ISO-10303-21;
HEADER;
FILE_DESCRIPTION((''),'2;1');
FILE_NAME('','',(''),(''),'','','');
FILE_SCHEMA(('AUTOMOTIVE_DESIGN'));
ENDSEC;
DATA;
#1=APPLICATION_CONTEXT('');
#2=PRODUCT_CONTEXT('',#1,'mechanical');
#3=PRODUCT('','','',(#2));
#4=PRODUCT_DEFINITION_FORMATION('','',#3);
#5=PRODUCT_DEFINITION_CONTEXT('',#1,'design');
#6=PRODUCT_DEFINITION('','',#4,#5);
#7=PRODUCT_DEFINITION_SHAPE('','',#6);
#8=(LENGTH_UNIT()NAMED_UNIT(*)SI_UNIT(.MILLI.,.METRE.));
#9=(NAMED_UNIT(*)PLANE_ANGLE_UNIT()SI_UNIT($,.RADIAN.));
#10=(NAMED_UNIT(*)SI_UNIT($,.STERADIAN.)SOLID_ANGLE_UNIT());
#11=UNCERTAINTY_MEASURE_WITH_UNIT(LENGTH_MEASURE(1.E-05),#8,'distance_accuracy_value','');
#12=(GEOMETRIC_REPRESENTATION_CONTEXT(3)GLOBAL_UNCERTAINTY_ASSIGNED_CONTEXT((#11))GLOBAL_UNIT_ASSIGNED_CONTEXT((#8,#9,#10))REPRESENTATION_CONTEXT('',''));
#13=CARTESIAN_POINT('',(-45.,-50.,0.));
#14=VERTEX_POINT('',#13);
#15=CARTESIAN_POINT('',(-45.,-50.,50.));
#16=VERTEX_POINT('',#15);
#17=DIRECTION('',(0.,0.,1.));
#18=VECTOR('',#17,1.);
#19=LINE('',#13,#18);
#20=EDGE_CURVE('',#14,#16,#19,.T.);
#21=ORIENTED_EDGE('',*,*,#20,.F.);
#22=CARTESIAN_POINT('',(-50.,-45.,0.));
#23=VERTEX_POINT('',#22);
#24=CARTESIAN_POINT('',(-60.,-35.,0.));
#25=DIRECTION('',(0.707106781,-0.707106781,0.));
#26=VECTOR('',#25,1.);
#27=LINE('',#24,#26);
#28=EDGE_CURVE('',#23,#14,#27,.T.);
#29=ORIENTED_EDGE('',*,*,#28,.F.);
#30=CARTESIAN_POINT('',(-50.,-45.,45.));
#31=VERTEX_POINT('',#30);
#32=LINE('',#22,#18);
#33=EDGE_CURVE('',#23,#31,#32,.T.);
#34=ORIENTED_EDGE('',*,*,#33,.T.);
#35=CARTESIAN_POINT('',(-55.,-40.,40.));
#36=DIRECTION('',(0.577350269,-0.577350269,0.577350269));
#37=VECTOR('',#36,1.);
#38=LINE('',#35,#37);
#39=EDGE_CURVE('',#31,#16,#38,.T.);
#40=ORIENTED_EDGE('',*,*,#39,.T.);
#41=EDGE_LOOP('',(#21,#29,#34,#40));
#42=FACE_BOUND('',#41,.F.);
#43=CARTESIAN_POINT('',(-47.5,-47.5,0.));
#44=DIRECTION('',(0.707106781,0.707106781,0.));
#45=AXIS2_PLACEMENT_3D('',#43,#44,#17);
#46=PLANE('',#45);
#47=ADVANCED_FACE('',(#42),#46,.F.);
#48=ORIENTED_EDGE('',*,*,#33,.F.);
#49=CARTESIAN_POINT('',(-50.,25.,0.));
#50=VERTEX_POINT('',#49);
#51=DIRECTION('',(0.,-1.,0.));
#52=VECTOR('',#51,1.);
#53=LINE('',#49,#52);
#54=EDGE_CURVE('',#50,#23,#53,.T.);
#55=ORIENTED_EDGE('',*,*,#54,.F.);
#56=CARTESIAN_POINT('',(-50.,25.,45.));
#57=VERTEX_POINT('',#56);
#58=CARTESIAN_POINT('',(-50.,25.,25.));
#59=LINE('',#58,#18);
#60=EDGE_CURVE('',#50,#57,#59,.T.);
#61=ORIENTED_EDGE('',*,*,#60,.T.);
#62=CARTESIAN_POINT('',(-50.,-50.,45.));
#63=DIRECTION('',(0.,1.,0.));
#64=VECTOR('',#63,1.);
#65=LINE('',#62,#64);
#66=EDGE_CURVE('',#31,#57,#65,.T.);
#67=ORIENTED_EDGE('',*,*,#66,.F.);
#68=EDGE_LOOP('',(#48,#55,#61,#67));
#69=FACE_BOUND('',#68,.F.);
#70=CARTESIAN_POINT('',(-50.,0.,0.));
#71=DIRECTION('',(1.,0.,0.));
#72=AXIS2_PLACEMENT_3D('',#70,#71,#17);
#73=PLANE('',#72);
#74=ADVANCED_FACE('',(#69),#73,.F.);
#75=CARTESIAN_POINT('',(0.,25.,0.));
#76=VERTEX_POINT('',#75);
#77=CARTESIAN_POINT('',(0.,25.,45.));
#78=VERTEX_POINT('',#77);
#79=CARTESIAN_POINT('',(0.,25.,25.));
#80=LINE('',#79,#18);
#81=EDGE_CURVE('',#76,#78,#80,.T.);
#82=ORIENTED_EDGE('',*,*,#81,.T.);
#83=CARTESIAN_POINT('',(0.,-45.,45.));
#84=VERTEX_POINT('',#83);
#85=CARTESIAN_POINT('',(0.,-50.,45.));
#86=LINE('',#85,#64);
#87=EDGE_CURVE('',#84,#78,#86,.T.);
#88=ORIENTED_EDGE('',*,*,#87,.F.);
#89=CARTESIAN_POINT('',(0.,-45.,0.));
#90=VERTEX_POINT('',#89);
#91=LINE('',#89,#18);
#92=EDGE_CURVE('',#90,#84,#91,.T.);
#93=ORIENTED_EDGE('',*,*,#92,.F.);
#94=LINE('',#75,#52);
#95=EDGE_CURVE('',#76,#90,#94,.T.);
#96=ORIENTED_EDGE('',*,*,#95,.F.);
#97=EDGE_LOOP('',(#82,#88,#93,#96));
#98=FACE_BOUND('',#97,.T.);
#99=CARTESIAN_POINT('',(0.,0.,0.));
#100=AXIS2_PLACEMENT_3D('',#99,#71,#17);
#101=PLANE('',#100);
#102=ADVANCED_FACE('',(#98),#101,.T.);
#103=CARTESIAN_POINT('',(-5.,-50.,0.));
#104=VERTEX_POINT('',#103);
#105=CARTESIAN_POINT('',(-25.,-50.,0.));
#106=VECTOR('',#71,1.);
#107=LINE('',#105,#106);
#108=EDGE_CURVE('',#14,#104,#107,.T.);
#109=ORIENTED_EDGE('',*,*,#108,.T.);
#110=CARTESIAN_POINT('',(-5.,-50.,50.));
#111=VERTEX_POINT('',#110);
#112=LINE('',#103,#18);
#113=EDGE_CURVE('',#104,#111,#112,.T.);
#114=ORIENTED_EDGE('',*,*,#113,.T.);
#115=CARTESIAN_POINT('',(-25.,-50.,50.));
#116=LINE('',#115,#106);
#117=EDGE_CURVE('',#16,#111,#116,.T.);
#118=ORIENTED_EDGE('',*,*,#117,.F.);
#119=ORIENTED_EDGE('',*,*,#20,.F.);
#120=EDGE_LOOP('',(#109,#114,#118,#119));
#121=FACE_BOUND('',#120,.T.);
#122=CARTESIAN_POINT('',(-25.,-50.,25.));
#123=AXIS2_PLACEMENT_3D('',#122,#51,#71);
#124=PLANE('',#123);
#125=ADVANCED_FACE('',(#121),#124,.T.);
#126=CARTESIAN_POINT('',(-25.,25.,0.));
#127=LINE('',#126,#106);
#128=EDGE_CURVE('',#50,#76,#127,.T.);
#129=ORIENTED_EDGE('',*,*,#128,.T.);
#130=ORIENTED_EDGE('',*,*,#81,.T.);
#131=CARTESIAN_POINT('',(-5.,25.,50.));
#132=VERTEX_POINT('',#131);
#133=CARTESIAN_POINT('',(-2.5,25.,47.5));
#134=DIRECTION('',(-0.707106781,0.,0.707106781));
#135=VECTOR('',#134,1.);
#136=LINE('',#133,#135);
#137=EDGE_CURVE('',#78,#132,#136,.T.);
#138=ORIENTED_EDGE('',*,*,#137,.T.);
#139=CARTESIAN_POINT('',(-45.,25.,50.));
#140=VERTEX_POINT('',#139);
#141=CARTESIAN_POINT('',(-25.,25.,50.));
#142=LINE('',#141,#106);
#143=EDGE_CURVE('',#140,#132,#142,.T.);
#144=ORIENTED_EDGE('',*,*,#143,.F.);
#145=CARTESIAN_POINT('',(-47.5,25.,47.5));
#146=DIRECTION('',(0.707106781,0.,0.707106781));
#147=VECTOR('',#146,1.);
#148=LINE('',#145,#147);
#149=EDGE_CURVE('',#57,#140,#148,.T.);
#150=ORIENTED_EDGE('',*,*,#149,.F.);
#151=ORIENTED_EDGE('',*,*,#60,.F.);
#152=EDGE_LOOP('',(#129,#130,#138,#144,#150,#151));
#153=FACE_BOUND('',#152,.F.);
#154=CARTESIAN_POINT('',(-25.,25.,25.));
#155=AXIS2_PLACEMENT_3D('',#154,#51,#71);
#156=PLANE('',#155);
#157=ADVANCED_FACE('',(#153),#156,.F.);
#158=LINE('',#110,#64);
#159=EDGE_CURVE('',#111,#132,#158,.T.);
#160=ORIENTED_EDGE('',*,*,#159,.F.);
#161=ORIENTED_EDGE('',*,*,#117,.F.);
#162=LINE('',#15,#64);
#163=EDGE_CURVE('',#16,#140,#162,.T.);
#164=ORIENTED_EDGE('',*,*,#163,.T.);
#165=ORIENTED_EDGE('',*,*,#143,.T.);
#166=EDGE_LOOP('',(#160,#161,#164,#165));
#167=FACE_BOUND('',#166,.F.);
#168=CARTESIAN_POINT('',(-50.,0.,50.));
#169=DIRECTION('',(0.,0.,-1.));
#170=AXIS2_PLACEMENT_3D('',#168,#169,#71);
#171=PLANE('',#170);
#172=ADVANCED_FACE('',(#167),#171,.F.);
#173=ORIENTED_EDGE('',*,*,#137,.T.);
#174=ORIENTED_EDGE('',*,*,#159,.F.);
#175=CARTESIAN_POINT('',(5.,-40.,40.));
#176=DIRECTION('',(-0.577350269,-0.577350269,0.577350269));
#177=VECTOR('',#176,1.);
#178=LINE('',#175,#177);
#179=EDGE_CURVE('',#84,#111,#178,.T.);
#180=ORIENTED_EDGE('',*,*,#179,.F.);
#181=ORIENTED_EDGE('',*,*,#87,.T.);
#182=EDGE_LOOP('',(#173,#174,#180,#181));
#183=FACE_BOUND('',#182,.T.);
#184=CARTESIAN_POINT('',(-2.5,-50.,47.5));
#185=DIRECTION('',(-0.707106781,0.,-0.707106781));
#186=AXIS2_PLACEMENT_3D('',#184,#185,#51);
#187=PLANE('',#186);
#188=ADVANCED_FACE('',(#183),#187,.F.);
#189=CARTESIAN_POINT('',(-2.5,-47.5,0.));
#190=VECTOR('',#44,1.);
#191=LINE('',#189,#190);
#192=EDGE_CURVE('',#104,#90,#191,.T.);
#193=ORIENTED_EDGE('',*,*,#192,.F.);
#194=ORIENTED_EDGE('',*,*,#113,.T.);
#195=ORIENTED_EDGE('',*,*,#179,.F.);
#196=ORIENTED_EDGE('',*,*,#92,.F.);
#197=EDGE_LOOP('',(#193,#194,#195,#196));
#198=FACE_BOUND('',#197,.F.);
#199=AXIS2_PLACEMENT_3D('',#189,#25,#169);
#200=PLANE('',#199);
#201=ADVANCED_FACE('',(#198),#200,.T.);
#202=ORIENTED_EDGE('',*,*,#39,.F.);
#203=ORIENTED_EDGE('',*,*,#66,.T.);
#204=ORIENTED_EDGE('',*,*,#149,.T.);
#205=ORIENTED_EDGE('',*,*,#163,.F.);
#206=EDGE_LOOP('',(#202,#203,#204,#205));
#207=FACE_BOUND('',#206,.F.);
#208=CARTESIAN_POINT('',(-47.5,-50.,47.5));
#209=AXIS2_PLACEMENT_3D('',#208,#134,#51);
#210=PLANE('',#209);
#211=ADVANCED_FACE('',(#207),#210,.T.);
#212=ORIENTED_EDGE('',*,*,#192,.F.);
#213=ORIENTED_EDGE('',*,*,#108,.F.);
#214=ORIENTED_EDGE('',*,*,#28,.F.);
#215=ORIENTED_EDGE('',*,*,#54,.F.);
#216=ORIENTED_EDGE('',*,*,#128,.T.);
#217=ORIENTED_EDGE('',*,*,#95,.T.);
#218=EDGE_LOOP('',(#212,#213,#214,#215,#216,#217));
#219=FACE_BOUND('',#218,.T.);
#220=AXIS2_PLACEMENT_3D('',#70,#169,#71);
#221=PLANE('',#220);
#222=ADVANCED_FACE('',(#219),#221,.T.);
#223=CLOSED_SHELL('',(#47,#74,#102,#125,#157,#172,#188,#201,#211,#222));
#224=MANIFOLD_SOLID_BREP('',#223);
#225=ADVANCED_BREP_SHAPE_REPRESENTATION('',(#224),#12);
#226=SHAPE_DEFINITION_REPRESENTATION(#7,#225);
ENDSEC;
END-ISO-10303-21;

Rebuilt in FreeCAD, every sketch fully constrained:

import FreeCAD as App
import Part
import Sketcher

V = App.Vector


def edges_at(feature, points):
    """Names of the edges that pass closest to the given points."""
    edges = feature.Shape.Edges
    near = lambda p: min(range(len(edges)), key=lambda i: edges[i].distToShape(Part.Vertex(*p))[0])
    return sorted({f"Edge{near(p) + 1}" for p in points})

doc = App.newDocument("Part")
body = doc.addObject("PartDesign::Body", "Body")

# Sketch on XZ plane
sketch1 = body.newObject("Sketcher::SketchObject", "Sketch")
sketch1.AttachmentSupport = (doc.getObject("XZ_Plane"), [""])
sketch1.MapMode = "FlatFace"
sketch1.addGeometry(Part.LineSegment(V(-50, 50, 0), V(-50, 0, 0)), False)
sketch1.addGeometry(Part.LineSegment(V(-50, 0, 0), V(0, 0, 0)), False)
sketch1.addGeometry(Part.LineSegment(V(0, 0, 0), V(0, 50, 0)), False)
sketch1.addGeometry(Part.LineSegment(V(0, 50, 0), V(-50, 50, 0)), False)
sketch1.addConstraint(Sketcher.Constraint("Coincident", 0, 2, 1, 1))
sketch1.addConstraint(Sketcher.Constraint("Coincident", 1, 2, 2, 1))
sketch1.addConstraint(Sketcher.Constraint("Coincident", 2, 2, 3, 1))
sketch1.addConstraint(Sketcher.Constraint("Coincident", 3, 2, 0, 1))
sketch1.addConstraint(Sketcher.Constraint("Vertical", 0))
sketch1.addConstraint(Sketcher.Constraint("Horizontal", 1))
sketch1.addConstraint(Sketcher.Constraint("Vertical", 2))
sketch1.addConstraint(Sketcher.Constraint("Horizontal", 3))
sketch1.addConstraint(Sketcher.Constraint("Coincident", 1, 2, -1, 1))
sketch1.addConstraint(Sketcher.Constraint("Equal", 3, 0))
sketch1.addConstraint(Sketcher.Constraint("DistanceX", 1, 1, 1, 2, 50.0))
pad1 = body.newObject("PartDesign::Pad", "Pad")
pad1.Profile = sketch1
pad1.Type = "TwoLengths"
pad1.Length = 50
pad1.Length2 = 25
doc.recompute()

chamfer = body.newObject("PartDesign::Chamfer", "Chamfer")
chamfer.Base = (pad1, edges_at(pad1, [
    (0, -12.5, 50),
    (0, -50, 25),
    (-50, -50, 25),
    (-50, -12.5, 50),
]))
chamfer.Size = 5

doc.recompute()
